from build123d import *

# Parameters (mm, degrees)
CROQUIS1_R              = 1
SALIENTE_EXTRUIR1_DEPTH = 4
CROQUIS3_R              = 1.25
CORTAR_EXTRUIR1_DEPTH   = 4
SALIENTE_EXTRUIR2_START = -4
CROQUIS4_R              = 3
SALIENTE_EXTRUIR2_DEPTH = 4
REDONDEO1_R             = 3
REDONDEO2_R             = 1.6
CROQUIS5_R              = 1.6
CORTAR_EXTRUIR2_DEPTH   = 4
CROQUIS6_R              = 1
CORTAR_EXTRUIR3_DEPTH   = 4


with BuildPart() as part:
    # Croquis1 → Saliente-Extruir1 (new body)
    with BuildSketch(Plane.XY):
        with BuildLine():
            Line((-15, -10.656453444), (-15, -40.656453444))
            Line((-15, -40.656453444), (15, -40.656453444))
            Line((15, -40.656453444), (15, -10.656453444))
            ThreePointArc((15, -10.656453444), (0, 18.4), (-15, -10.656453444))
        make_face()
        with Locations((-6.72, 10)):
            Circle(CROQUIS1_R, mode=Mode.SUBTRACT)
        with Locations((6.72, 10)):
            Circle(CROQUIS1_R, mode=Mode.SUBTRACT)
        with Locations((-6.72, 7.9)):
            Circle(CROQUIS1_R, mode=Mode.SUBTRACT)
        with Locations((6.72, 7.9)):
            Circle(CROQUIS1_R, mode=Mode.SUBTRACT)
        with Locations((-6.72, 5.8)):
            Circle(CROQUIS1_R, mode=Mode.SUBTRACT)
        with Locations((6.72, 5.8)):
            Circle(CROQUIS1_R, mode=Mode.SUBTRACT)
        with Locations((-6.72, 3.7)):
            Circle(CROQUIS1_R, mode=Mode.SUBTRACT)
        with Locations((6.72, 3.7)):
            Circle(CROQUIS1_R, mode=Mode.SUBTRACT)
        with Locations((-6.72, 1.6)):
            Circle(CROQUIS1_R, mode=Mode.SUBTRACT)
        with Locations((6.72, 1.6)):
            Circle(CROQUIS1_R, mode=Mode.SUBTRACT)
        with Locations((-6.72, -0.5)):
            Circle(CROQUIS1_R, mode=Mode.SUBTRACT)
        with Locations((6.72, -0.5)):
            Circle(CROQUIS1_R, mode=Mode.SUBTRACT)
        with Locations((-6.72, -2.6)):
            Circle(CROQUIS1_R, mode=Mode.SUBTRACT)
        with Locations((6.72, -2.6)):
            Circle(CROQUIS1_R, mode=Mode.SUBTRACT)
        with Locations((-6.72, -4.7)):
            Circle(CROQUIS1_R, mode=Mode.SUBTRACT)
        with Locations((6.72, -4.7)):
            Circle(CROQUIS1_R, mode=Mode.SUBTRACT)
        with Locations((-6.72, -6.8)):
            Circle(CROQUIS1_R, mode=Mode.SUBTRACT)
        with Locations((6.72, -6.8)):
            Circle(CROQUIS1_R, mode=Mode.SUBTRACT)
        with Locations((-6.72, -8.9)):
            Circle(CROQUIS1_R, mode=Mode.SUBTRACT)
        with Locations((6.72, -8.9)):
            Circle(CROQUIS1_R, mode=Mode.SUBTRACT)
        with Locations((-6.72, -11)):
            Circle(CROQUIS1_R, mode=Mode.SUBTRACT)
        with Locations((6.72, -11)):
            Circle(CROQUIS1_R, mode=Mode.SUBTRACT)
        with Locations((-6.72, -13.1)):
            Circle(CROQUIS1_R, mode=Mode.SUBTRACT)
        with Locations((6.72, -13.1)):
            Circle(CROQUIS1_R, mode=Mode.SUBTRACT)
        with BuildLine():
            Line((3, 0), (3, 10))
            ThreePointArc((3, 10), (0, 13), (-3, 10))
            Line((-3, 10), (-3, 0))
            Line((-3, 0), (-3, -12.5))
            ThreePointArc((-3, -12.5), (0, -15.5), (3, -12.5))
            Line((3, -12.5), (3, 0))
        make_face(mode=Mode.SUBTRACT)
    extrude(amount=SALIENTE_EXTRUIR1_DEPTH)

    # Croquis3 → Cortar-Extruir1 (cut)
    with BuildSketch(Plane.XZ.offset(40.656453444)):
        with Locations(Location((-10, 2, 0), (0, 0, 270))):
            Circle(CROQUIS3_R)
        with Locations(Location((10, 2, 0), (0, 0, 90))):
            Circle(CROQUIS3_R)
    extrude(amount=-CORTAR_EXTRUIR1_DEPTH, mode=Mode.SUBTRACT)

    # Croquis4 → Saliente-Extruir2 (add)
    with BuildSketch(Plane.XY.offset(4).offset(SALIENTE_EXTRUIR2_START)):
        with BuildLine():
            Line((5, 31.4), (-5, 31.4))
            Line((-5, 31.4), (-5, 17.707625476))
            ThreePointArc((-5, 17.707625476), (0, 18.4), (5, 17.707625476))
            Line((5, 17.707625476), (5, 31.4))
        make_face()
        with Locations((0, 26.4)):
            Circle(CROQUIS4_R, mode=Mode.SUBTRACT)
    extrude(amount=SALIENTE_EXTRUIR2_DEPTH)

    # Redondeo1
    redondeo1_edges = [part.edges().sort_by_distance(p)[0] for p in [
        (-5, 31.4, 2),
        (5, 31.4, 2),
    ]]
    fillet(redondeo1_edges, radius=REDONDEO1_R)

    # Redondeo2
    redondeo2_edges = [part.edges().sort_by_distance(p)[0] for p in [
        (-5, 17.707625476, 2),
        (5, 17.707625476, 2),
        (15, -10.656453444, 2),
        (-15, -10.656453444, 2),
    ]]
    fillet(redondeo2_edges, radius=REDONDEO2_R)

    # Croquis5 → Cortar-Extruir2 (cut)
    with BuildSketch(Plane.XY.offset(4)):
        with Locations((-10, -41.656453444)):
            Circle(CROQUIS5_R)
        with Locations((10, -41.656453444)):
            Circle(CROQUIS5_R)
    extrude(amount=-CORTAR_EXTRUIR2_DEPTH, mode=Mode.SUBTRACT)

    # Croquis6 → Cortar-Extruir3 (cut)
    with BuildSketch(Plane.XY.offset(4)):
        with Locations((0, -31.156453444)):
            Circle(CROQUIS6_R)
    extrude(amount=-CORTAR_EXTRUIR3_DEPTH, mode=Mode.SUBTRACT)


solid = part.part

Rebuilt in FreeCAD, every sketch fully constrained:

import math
import FreeCAD as App
import Part
import Sketcher

V = App.Vector
Q = App.Units.Quantity


def edges_at(feature, points):
    """Names of the edges that pass closest to the given points."""
    edges = feature.Shape.Edges
    near = lambda p: min(range(len(edges)), key=lambda i: edges[i].distToShape(Part.Vertex(*p))[0])
    return sorted({f"Edge{near(p) + 1}" for p in points})

doc = App.newDocument("Part")
body = doc.addObject("PartDesign::Body", "Body")

sketch1 = body.newObject("Sketcher::SketchObject", "Sketch")
sketch1.AttachmentSupport = (doc.getObject("XY_Plane"), [""])
sketch1.MapMode = "FlatFace"
sketch1.addGeometry([
    Part.LineSegment(V(-15, -10.7, 0), V(-15, -40.7, 0)),
    Part.LineSegment(V(-15, -40.7, 0), V(15, -40.7, 0)),
    Part.LineSegment(V(15, -40.7, 0), V(15, -10.7, 0)),
    Part.ArcOfCircle(Part.Circle(V(0, 0, 0), V(0, 0, 1), 18.4), math.radians(-35), math.radians(215)),
    Part.Circle(V(-6.7, -13.1, 0), V(0, 0, 1), 1),
    Part.Circle(V(-6.7, -11, 0), V(0, 0, 1), 1),
    Part.Circle(V(-6.7, -8.9, 0), V(0, 0, 1), 1),
    Part.Circle(V(-6.7, -6.8, 0), V(0, 0, 1), 1),
    Part.Circle(V(-6.7, -4.7, 0), V(0, 0, 1), 1),
    Part.Circle(V(-6.7, -2.6, 0), V(0, 0, 1), 1),
    Part.Circle(V(6.7, -13.1, 0), V(0, 0, 1), 1),
    Part.Circle(V(6.7, -11, 0), V(0, 0, 1), 1),
    Part.Circle(V(6.7, -8.9, 0), V(0, 0, 1), 1),
    Part.Circle(V(6.7, -6.8, 0), V(0, 0, 1), 1),
    Part.Circle(V(6.7, -4.7, 0), V(0, 0, 1), 1),
    Part.Circle(V(6.7, -2.6, 0), V(0, 0, 1), 1),
    Part.Circle(V(-6.7, -0.5, 0), V(0, 0, 1), 1),
    Part.Circle(V(-6.7, 1.6, 0), V(0, 0, 1), 1),
    Part.Circle(V(-6.7, 3.7, 0), V(0, 0, 1), 1),
    Part.Circle(V(-6.7, 5.8, 0), V(0, 0, 1), 1),
    Part.Circle(V(-6.7, 7.9, 0), V(0, 0, 1), 1),
    Part.Circle(V(-6.7, 10, 0), V(0, 0, 1), 1),
    Part.ArcOfCircle(Part.Circle(V(0, 10, 0), V(0, 0, 1), 3), math.radians(0), math.radians(180)),
    Part.LineSegment(V(3, 10, 0), V(3, -12.5, 0)),
    Part.ArcOfCircle(Part.Circle(V(0, -12.5, 0), V(0, 0, 1), 3), math.radians(180), math.radians(360)),
    Part.LineSegment(V(-3, -12.5, 0), V(-3, 10, 0)),
    Part.Circle(V(6.7, -0.5, 0), V(0, 0, 1), 1),
    Part.Circle(V(6.7, 1.6, 0), V(0, 0, 1), 1),
    Part.Circle(V(6.7, 3.7, 0), V(0, 0, 1), 1),
    Part.Circle(V(6.7, 5.8, 0), V(0, 0, 1), 1),
    Part.Circle(V(6.7, 7.9, 0), V(0, 0, 1), 1),
    Part.Circle(V(6.7, 10, 0), V(0, 0, 1), 1),
], False)
sketch1.addConstraint([
    Sketcher.Constraint("Coincident", 0, 2, 1, 1),
    Sketcher.Constraint("Coincident", 1, 2, 2, 1),
    Sketcher.Constraint("Coincident", 2, 2, 3, 1),
    Sketcher.Constraint("Coincident", 3, 2, 0, 1),
    Sketcher.Constraint("Tangent", 22, 1, 23, 1),
    Sketcher.Constraint("Tangent", 23, 2, 24, 2),
    Sketcher.Constraint("Tangent", 24, 1, 25, 1),
    Sketcher.Constraint("Tangent", 25, 2, 22, 2),
    Sketcher.Constraint("Vertical", 0),
    Sketcher.Constraint("Horizontal", 1),
    Sketcher.Constraint("Vertical", 2),
    Sketcher.Constraint("Vertical", 23),
    Sketcher.Constraint("Vertical", 25),
    Sketcher.Constraint("Coincident", 3, 3, -1, 1),
    Sketcher.Constraint("Equal", 4, 5),
    Sketcher.Constraint("Equal", 5, 6),
    Sketcher.Constraint("Equal", 6, 7),
    Sketcher.Constraint("Equal", 7, 8),
    Sketcher.Constraint("Equal", 8, 9),
    Sketcher.Constraint("Equal", 9, 10),
    Sketcher.Constraint("Equal", 10, 11),
    Sketcher.Constraint("Equal", 11, 12),
    Sketcher.Constraint("Equal", 12, 13),
    Sketcher.Constraint("Equal", 13, 14),
    Sketcher.Constraint("Equal", 14, 15),
    Sketcher.Constraint("Equal", 15, 16),
    Sketcher.Constraint("Equal", 16, 17),
    Sketcher.Constraint("Equal", 17, 18),
    Sketcher.Constraint("Equal", 18, 19),
    Sketcher.Constraint("Equal", 19, 20),
    Sketcher.Constraint("Equal", 20, 21),
    Sketcher.Constraint("Equal", 21, 26),
    Sketcher.Constraint("Equal", 26, 27),
    Sketcher.Constraint("Equal", 27, 28),
    Sketcher.Constraint("Equal", 28, 29),
    Sketcher.Constraint("Equal", 29, 30),
    Sketcher.Constraint("Equal", 30, 31),
    Sketcher.Constraint("Symmetric", 4, 3, 10, 3, -2),
    Sketcher.Constraint("Symmetric", 5, 3, 11, 3, -2),
    Sketcher.Constraint("Symmetric", 6, 3, 12, 3, -2),
    Sketcher.Constraint("Symmetric", 7, 3, 13, 3, -2),
    Sketcher.Constraint("Symmetric", 8, 3, 14, 3, -2),
    Sketcher.Constraint("Symmetric", 9, 3, 15, 3, -2),
    Sketcher.Constraint("Symmetric", 16, 3, 26, 3, -2),
    Sketcher.Constraint("Symmetric", 17, 3, 27, 3, -2),
    Sketcher.Constraint("Symmetric", 18, 3, 28, 3, -2),
    Sketcher.Constraint("Symmetric", 19, 3, 29, 3, -2),
    Sketcher.Constraint("Symmetric", 20, 3, 30, 3, -2),
    Sketcher.Constraint("Symmetric", 21, 3, 31, 3, -2),
    Sketcher.Constraint("PointOnObject", 22, 3, -2),
    Sketcher.Constraint("Horizontal", 21, 3, 22, 3),
    Sketcher.Constraint("Horizontal", 2, 2, 3, 2),
    Sketcher.Constraint("Vertical", 4, 3, 5, 3),
    Sketcher.Constraint("Vertical", 5, 3, 6, 3),
    Sketcher.Constraint("Vertical", 6, 3, 7, 3),
    Sketcher.Constraint("Vertical", 7, 3, 8, 3),
    Sketcher.Constraint("Vertical", 8, 3, 9, 3),
    Sketcher.Constraint("Vertical", 9, 3, 16, 3),
    Sketcher.Constraint("Vertical", 16, 3, 17, 3),
    Sketcher.Constraint("Vertical", 17, 3, 18, 3),
    Sketcher.Constraint("Vertical", 18, 3, 19, 3),
    Sketcher.Constraint("Vertical", 19, 3, 20, 3),
    Sketcher.Constraint("Vertical", 20, 3, 21, 3),
    Sketcher.Constraint("Equal", 1, 0),
    Sketcher.Constraint("Diameter", 4, Q("2 mm")),
    Sketcher.Constraint("Radius", 22, Q("3 mm")),
    Sketcher.Constraint("Radius", 3, Q("18.4 mm")),
    Sketcher.Constraint("DistanceX", 1, 1, 1, 2, Q("30 mm")),
    Sketcher.Constraint("DistanceY", 23, 2, 23, 1, Q("22.5 mm")),
    Sketcher.Constraint("DistanceY", 5, 3, -1, 1, Q("11 mm")),
    Sketcher.Constraint("DistanceY", -1, 1, 21, 3, Q("10 mm")),
    Sketcher.Constraint("DistanceY", 4, 3, -1, 1, Q("13.1 mm")),
    Sketcher.Constraint("DistanceY", 6, 3, -1, 1, Q("8.9 mm")),
    Sketcher.Constraint("DistanceY", 7, 3, -1, 1, Q("6.8 mm")),
    Sketcher.Constraint("DistanceY", 8, 3, -1, 1, Q("4.7 mm")),
    Sketcher.Constraint("DistanceY", 9, 3, -1, 1, Q("2.6 mm")),
    Sketcher.Constraint("DistanceY", 16, 3, -1, 1, Q("0.5 mm")),
    Sketcher.Constraint("DistanceY", -1, 1, 17, 3, Q("1.6 mm")),
    Sketcher.Constraint("DistanceY", -1, 1, 18, 3, Q("3.7 mm")),
    Sketcher.Constraint("DistanceY", -1, 1, 19, 3, Q("5.8 mm")),
    Sketcher.Constraint("DistanceY", -1, 1, 20, 3, Q("7.9 mm")),
    Sketcher.Constraint("DistanceX", 4, 3, -1, 1, Q("6.72 mm")),
])
pad1 = body.newObject("PartDesign::Pad", "Pad")
pad1.Profile = sketch1
pad1.Length = 4

sketch2 = body.newObject("Sketcher::SketchObject", "Sketch001")
sketch2.AttachmentSupport = (doc.getObject("XZ_Plane"), [""])
sketch2.MapMode = "FlatFace"
sketch2.AttachmentOffset = App.Placement(V(0, 0, 40.656453), App.Rotation())
sketch2.addGeometry([
    Part.Circle(V(-10, 2, 0), V(0, 0, 1), 1.2),
    Part.Circle(V(10, 2, 0), V(0, 0, 1), 1.2),
], False)
sketch2.addConstraint([
    Sketcher.Constraint("Equal", 0, 1),
    Sketcher.Constraint("Symmetric", 0, 3, 1, 3, -2),
    Sketcher.Constraint("Diameter", 0, Q("2.5 mm")),
    Sketcher.Constraint("DistanceX", 0, 3, -1, 1, Q("10 mm")),
    Sketcher.Constraint("DistanceY", -1, 1, 0, 3, Q("2 mm")),
])
pocket1 = body.newObject("PartDesign::Pocket", "Pocket")
pocket1.Profile = sketch2
pocket1.Length = 4

sketch3 = body.newObject("Sketcher::SketchObject", "Sketch002")
sketch3.AttachmentSupport = (doc.getObject("XY_Plane"), [""])
sketch3.MapMode = "FlatFace"
sketch3.addGeometry([
    Part.LineSegment(V(5, 31.4, 0), V(-5, 31.4, 0)),
    Part.LineSegment(V(-5, 31.4, 0), V(-5, 17.7, 0)),
    Part.ArcOfCircle(Part.Circle(V(0, 0, 0), V(0, 0, 1), 18.4), math.radians(74), math.radians(106)),
    Part.LineSegment(V(5, 17.7, 0), V(5, 31.4, 0)),
    Part.Circle(V(0, 26.4, 0), V(0, 0, 1), 3),
], False)
sketch3.addConstraint([
    Sketcher.Constraint("Coincident", 0, 2, 1, 1),
    Sketcher.Constraint("Coincident", 1, 2, 2, 2),
    Sketcher.Constraint("Coincident", 2, 1, 3, 1),
    Sketcher.Constraint("Coincident", 3, 2, 0, 1),
    Sketcher.Constraint("Horizontal", 0),
    Sketcher.Constraint("Vertical", 1),
    Sketcher.Constraint("Vertical", 3),
    Sketcher.Constraint("Coincident", 2, 3, -1, 1),
    Sketcher.Constraint("PointOnObject", 4, 3, -2),
    Sketcher.Constraint("Horizontal", 1, 2, 2, 1),
    Sketcher.Constraint("Diameter", 4, Q("6 mm")),
    Sketcher.Constraint("Radius", 2, Q("18.4 mm")),
    Sketcher.Constraint("DistanceX", 0, 2, 0, 1, Q("10 mm")),
    Sketcher.Constraint("DistanceY", 4, 3, 0, 2, Q("5 mm")),
    Sketcher.Constraint("DistanceY", -1, 1, 4, 3, Q("26.4 mm")),
])
pad2 = body.newObject("PartDesign::Pad", "Pad001")
pad2.Profile = sketch3
pad2.Length = 4
doc.recompute()

fillet = body.newObject("PartDesign::Fillet", "Fillet")
fillet.Base = (pad2, edges_at(pad2, [(-5, 31.4, 2), (5, 31.4, 2)]))
fillet.Radius = 3
doc.recompute()

fillet2 = body.newObject("PartDesign::Fillet", "Fillet001")
fillet2.Base = (fillet, edges_at(fillet, [
    (-5, 17.708, 2),
    (5, 17.708, 2),
    (15, -10.656, 2),
    (-15, -10.656, 2),
]))
fillet2.Radius = 1.6

sketch4 = body.newObject("Sketcher::SketchObject", "Sketch003")
sketch4.AttachmentSupport = (doc.getObject("XY_Plane"), [""])
sketch4.MapMode = "FlatFace"
sketch4.AttachmentOffset = App.Placement(V(0, 0, 4), App.Rotation())
sketch4.addGeometry([
    Part.Circle(V(-10, -41.7, 0), V(0, 0, 1), 1.6),
    Part.Circle(V(10, -41.7, 0), V(0, 0, 1), 1.6),
], False)
sketch4.addConstraint([
    Sketcher.Constraint("Equal", 0, 1),
    Sketcher.Constraint("Symmetric", 0, 3, 1, 3, -2),
    Sketcher.Constraint("Diameter", 0, Q("3.2 mm")),
    Sketcher.Constraint("DistanceX", 0, 3, -1, 1, Q("10 mm")),
    Sketcher.Constraint("DistanceY", 0, 3, -1, 1, Q("41.656453 mm")),
])
pocket2 = body.newObject("PartDesign::Pocket", "Pocket001")
pocket2.Profile = sketch4
pocket2.Length = 4

sketch5 = body.newObject("Sketcher::SketchObject", "Sketch004")
sketch5.AttachmentSupport = (doc.getObject("XY_Plane"), [""])
sketch5.MapMode = "FlatFace"
sketch5.AttachmentOffset = App.Placement(V(0, 0, 4), App.Rotation())
sketch5.addGeometry(Part.Circle(V(0, -31.2, 0), V(0, 0, 1), 1), False)
sketch5.addConstraint([
    Sketcher.Constraint("PointOnObject", 0, 3, -2),
    Sketcher.Constraint("Diameter", 0, Q("2 mm")),
    Sketcher.Constraint("DistanceY", 0, 3, -1, 1, Q("31.156453 mm")),
])
pocket3 = body.newObject("PartDesign::Pocket", "Pocket002")
pocket3.Profile = sketch5
pocket3.Length = 4

doc.recompute()
